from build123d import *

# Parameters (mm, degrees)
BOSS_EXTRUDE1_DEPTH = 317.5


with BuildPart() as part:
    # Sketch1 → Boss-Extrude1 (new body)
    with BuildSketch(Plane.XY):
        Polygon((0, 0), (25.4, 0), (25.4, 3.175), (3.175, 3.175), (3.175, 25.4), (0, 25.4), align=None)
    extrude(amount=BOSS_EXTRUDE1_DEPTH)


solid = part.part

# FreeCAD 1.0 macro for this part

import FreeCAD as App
import Part
import Sketcher

V = App.Vector
Q = App.Units.Quantity


def add_polygon(sketch, points):
    """Adds a closed chain of lines whose ends are joined by coincident constraints."""
    first, n = sketch.GeometryCount, len(points)
    for a, b in zip(points, points[1:] + points[:1]):
        sketch.addGeometry(Part.LineSegment(App.Vector(*a, 0), App.Vector(*b, 0)), False)
    for i in range(n):
        sketch.addConstraint(Sketcher.Constraint("Coincident", first + i, 2, first + (i + 1) % n, 1))

doc = App.newDocument("Part")
params = doc.addObject("Spreadsheet::Sheet", "Params")
for row, (alias, value) in enumerate([
    ("sketch1_width", "1 in"),
    ("sketch1_width2", "0.875 in"),
    ("pad1_length", "12.5 in"),
], start=1):
    params.set(f"A{row}", alias)
    params.set(f"B{row}", "=" + value)
    params.setAlias(f"B{row}", alias)

body = doc.addObject("PartDesign::Body", "Body")

# Sketch on XY plane
sketch1 = body.newObject("Sketcher::SketchObject", "Sketch")
sketch1.AttachmentSupport = (doc.getObject("XY_Plane"), [""])
sketch1.MapMode = "FlatFace"
add_polygon(sketch1, [(0, 0), (25.4, 0), (25.4, 3.2), (3.2, 3.2), (3.2, 25.4), (0, 25.4)])  # lines 0-5
sketch1.addConstraint([
    Sketcher.Constraint("Horizontal", 0),
    Sketcher.Constraint("Vertical", 1),
    Sketcher.Constraint("Horizontal", 2),
    Sketcher.Constraint("Vertical", 3),
    Sketcher.Constraint("Horizontal", 4),
    Sketcher.Constraint("Vertical", 5),
    Sketcher.Constraint("Coincident", 5, 2, -1, 1),
    Sketcher.Constraint("Equal", 4, 1),
    Sketcher.Constraint("Equal", 2, 3),
    Sketcher.Constraint("DistanceX", 0, 1, 0, 2, Q("1 in")),
    Sketcher.Constraint("DistanceX", 2, 2, 2, 1, Q("0.875 in")),
])
sketch1.setExpression("Constraints[15]", "Params.sketch1_width")
sketch1.setExpression("Constraints[16]", "Params.sketch1_width2")
pad1 = body.newObject("PartDesign::Pad", "Pad")
pad1.Profile = sketch1
pad1.setExpression("Length", "Params.pad1_length")

doc.recompute()
